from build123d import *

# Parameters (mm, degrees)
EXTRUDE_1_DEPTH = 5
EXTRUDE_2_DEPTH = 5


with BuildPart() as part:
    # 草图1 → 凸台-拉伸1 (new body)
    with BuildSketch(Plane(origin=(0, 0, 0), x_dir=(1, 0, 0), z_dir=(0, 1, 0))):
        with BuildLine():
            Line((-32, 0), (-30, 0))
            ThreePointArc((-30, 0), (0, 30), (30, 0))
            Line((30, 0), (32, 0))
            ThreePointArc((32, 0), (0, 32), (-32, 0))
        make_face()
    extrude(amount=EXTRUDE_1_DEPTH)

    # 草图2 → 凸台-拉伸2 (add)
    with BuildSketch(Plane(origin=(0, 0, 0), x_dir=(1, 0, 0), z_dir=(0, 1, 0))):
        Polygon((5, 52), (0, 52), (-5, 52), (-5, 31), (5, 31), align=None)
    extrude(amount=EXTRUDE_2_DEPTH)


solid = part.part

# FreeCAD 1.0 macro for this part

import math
import FreeCAD as App
import Part
import Sketcher

V = App.Vector

doc = App.newDocument("Part")
body = doc.addObject("PartDesign::Body", "Body")

# Sketch on XZ plane
sketch1 = body.newObject("Sketcher::SketchObject", "Sketch")
sketch1.AttachmentSupport = (doc.getObject("XZ_Plane"), [""])
sketch1.MapMode = "FlatFace"
sketch1.addGeometry([
    Part.LineSegment(V(-32, 0, 0), V(-30, 0, 0)),
    Part.ArcOfCircle(Part.Circle(V(0, 0, 0), V(0, 0, 1), 30), math.radians(180), math.radians(360)),
    Part.LineSegment(V(30, 0, 0), V(32, 0, 0)),
    Part.ArcOfCircle(Part.Circle(V(0, 0, 0), V(0, 0, 1), 32), math.radians(180), math.radians(360)),
], False)
sketch1.addConstraint([
    Sketcher.Constraint("Coincident", 0, 2, 1, 1),
    Sketcher.Constraint("Coincident", 1, 2, 2, 1),
    Sketcher.Constraint("Coincident", 2, 2, 3, 2),
    Sketcher.Constraint("Coincident", 3, 1, 0, 1),
    Sketcher.Constraint("Horizontal", 0),
    Sketcher.Constraint("Horizontal", 2),
    Sketcher.Constraint("Coincident", 1, 3, -1, 1),
    Sketcher.Constraint("Coincident", 3, 3, -1, 1),
    Sketcher.Constraint("PointOnObject", 0, 2, -1),
    Sketcher.Constraint("PointOnObject", 1, 2, -1),
    Sketcher.Constraint("Radius", 1, 30.0),
    Sketcher.Constraint("Radius", 3, 32.0),
])
pad1 = body.newObject("PartDesign::Pad", "Pad")
pad1.Profile = sketch1
pad1.Length = 5
pad1.Reversed = True

# Sketch on XZ plane
sketch2 = body.newObject("Sketcher::SketchObject", "Sketch001")
sketch2.AttachmentSupport = (doc.getObject("XZ_Plane"), [""])
sketch2.MapMode = "FlatFace"
sketch2.addGeometry([
    Part.LineSegment(V(5, -52, 0), V(-5, -52, 0)),
    Part.LineSegment(V(-5, -52, 0), V(-5, -31, 0)),
    Part.LineSegment(V(-5, -31, 0), V(5, -31, 0)),
    Part.LineSegment(V(5, -31, 0), V(5, -52, 0)),
], False)
sketch2.addConstraint([
    Sketcher.Constraint("Coincident", 0, 2, 1, 1),
    Sketcher.Constraint("Coincident", 1, 2, 2, 1),
    Sketcher.Constraint("Coincident", 2, 2, 3, 1),
    Sketcher.Constraint("Coincident", 3, 2, 0, 1),
    Sketcher.Constraint("Horizontal", 0),
    Sketcher.Constraint("Vertical", 1),
    Sketcher.Constraint("Horizontal", 2),
    Sketcher.Constraint("Vertical", 3),
    Sketcher.Constraint("DistanceX", 0, 2, 0, 1, 10.0),
    Sketcher.Constraint("DistanceY", 1, 1, 1, 2, 21.0),
    Sketcher.Constraint("DistanceX", 0, 2, -1, 1, 5.0),
    Sketcher.Constraint("DistanceY", 0, 2, -1, 1, 52.0),
])
pad2 = body.newObject("PartDesign::Pad", "Pad001")
pad2.Profile = sketch2
pad2.Length = 5
pad2.Reversed = True

doc.recompute()
